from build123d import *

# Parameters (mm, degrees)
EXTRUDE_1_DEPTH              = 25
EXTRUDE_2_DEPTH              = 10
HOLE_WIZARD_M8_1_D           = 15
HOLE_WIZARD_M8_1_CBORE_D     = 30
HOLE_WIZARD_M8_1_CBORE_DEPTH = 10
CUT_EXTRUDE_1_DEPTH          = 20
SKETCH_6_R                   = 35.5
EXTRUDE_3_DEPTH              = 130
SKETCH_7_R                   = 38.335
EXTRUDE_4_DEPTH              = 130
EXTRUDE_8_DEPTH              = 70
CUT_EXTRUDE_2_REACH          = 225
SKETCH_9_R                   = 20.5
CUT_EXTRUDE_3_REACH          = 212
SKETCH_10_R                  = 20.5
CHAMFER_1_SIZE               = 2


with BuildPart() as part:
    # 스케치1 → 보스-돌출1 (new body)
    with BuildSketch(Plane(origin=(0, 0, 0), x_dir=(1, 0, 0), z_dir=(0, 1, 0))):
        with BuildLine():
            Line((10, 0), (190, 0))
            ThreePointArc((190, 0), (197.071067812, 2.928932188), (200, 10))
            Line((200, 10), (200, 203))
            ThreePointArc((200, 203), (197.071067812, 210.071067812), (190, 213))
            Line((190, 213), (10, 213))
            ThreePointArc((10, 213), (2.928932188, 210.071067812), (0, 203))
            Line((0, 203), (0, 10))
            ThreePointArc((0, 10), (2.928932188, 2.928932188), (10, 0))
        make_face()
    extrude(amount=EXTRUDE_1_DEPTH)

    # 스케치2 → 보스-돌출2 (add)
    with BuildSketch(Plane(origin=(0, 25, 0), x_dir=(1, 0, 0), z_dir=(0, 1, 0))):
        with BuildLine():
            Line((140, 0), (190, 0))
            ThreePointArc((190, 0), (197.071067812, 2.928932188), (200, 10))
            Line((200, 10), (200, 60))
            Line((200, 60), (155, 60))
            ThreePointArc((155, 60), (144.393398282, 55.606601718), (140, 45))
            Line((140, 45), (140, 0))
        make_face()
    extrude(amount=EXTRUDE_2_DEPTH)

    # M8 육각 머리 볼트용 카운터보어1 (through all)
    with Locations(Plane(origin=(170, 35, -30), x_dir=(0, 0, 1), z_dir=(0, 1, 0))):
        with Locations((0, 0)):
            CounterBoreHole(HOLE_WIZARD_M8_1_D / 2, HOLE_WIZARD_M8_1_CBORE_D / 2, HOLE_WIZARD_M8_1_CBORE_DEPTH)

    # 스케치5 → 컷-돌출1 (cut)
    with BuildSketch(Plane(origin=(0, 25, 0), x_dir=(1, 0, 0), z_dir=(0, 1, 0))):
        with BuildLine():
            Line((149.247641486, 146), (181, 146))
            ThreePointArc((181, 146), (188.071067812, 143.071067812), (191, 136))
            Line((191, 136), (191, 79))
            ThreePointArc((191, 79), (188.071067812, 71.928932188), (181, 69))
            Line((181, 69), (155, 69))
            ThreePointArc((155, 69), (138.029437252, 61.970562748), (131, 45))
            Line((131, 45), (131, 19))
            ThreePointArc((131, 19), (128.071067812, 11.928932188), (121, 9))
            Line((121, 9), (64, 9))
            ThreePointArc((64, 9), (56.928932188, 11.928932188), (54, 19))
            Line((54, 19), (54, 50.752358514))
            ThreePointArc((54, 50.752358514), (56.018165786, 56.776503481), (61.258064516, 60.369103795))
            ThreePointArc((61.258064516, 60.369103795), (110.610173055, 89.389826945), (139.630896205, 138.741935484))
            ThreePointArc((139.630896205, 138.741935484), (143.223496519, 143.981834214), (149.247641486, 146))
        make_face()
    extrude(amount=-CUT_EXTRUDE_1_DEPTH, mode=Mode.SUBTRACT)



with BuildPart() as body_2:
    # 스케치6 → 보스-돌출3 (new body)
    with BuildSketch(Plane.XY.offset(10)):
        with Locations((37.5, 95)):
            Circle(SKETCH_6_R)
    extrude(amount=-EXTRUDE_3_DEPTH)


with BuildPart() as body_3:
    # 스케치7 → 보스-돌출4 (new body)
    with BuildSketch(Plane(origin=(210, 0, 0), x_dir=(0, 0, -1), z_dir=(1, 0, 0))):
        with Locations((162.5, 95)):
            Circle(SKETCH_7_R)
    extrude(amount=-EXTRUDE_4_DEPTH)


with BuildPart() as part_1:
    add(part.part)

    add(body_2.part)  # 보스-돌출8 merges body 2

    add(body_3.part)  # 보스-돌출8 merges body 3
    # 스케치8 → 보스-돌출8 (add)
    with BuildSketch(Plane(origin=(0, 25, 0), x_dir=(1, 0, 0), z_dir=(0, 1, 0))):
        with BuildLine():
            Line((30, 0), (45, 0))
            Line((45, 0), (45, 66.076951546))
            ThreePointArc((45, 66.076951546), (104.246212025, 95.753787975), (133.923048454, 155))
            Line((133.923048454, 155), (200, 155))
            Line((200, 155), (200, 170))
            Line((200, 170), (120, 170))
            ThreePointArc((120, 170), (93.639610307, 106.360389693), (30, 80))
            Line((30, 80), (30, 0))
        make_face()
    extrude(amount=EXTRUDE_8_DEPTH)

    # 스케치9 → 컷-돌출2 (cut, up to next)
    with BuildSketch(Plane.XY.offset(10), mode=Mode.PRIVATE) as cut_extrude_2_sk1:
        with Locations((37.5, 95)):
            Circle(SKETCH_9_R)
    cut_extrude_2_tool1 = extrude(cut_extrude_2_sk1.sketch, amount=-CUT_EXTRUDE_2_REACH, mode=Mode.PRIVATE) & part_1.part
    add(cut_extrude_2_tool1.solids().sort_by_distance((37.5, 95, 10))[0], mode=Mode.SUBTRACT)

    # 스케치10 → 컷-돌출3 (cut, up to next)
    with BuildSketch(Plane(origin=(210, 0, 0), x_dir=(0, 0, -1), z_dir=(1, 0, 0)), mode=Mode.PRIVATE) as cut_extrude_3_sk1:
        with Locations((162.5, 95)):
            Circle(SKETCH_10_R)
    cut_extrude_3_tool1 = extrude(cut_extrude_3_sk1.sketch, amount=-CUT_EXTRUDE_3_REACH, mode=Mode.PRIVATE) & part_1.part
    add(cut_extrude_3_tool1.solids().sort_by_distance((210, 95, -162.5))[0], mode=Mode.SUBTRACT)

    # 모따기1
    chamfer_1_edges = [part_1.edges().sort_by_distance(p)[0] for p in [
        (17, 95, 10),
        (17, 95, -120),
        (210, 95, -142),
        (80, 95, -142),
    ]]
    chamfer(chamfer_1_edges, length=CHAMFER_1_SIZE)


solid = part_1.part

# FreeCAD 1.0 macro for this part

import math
import FreeCAD as App
import Part
import Sketcher


def edges_at(feature, points):
    """Names of the edges that pass closest to the given points."""
    edges = feature.Shape.Edges
    near = lambda p: min(range(len(edges)), key=lambda i: edges[i].distToShape(Part.Vertex(*p))[0])
    return sorted({f"Edge{near(p) + 1}" for p in points})

doc = App.newDocument("Part")
body = doc.addObject("PartDesign::Body", "Body")

# Sketch on XZ plane
sketch1 = doc.addObject("Sketcher::SketchObject", "Sketch")
body.addObject(sketch1)
sketch1.AttachmentSupport = (doc.XZ_Plane, [""])
sketch1.MapMode = "FlatFace"
sketch1.addGeometry([
    Part.LineSegment(App.Vector(10, 0, 0), App.Vector(190, 0, 0)),  # 0
    Part.ArcOfCircle(Part.Circle(App.Vector(190, -10, 0), App.Vector(0, 0, 1), 10), math.radians(0), math.radians(90)),  # 1
    Part.LineSegment(App.Vector(200, -10, 0), App.Vector(200, -203, 0)),  # 2
    Part.ArcOfCircle(Part.Circle(App.Vector(190, -203, 0), App.Vector(0, 0, 1), 10), math.radians(-90), math.radians(0)),  # 3
    Part.LineSegment(App.Vector(190, -213, 0), App.Vector(10, -213, 0)),  # 4
    Part.ArcOfCircle(Part.Circle(App.Vector(10, -203, 0), App.Vector(0, 0, 1), 10), math.radians(180), math.radians(270)),  # 5
    Part.LineSegment(App.Vector(0, -203, 0), App.Vector(0, -10, 0)),  # 6
    Part.ArcOfCircle(Part.Circle(App.Vector(10, -10, 0), App.Vector(0, 0, 1), 10), math.radians(90), math.radians(180)),  # 7
], False)
sketch1.addConstraint([
    Sketcher.Constraint("Tangent", 0, 2, 1, 2),
    Sketcher.Constraint("Tangent", 1, 1, 2, 1),
    Sketcher.Constraint("Tangent", 2, 2, 3, 2),
    Sketcher.Constraint("Tangent", 3, 1, 4, 1),
    Sketcher.Constraint("Tangent", 4, 2, 5, 2),
    Sketcher.Constraint("Tangent", 5, 1, 6, 1),
    Sketcher.Constraint("Tangent", 6, 2, 7, 2),
    Sketcher.Constraint("Tangent", 7, 1, 0, 1),
    Sketcher.Constraint("Horizontal", 0),
    Sketcher.Constraint("Vertical", 2),
    Sketcher.Constraint("Horizontal", 4),
    Sketcher.Constraint("Vertical", 6),
    Sketcher.Constraint("Equal", 1, 3),
    Sketcher.Constraint("Equal", 3, 5),
    Sketcher.Constraint("Equal", 5, 7),
    Sketcher.Constraint("PointOnObject", 0, 2, -1),
    Sketcher.Constraint("PointOnObject", 5, 1, -2),
    Sketcher.Constraint("Radius", 1, 10.0),
    Sketcher.Constraint("DistanceX", 0, 1, 0, 2, 180.0),
    Sketcher.Constraint("DistanceY", 2, 2, 2, 1, 193.0),
])
pad1 = doc.addObject("PartDesign::Pad", "Pad")
body.addObject(pad1)
pad1.Profile = sketch1
pad1.Length = 25
pad1.Reversed = True

# Sketch on XZ plane
sketch2 = doc.addObject("Sketcher::SketchObject", "Sketch001")
body.addObject(sketch2)
sketch2.AttachmentSupport = (doc.XZ_Plane, [""])
sketch2.MapMode = "FlatFace"
sketch2.AttachmentOffset = App.Placement(App.Vector(0, 0, -25), App.Rotation())
sketch2.addGeometry([
    Part.LineSegment(App.Vector(140, 0, 0), App.Vector(190, 0, 0)),  # 0
    Part.ArcOfCircle(Part.Circle(App.Vector(190, -10, 0), App.Vector(0, 0, 1), 10), math.radians(0), math.radians(90)),  # 1
    Part.LineSegment(App.Vector(200, -10, 0), App.Vector(200, -60, 0)),  # 2
    Part.LineSegment(App.Vector(200, -60, 0), App.Vector(155, -60, 0)),  # 3
    Part.ArcOfCircle(Part.Circle(App.Vector(155, -45, 0), App.Vector(0, 0, 1), 15), math.radians(180), math.radians(270)),  # 4
    Part.LineSegment(App.Vector(140, -45, 0), App.Vector(140, 0, 0)),  # 5
], False)
sketch2.addConstraint([
    Sketcher.Constraint("Tangent", 0, 2, 1, 2),
    Sketcher.Constraint("Tangent", 1, 1, 2, 1),
    Sketcher.Constraint("Coincident", 2, 2, 3, 1),
    Sketcher.Constraint("Tangent", 3, 2, 4, 2),
    Sketcher.Constraint("Tangent", 4, 1, 5, 1),
    Sketcher.Constraint("Coincident", 5, 2, 0, 1),
    Sketcher.Constraint("Horizontal", 0),
    Sketcher.Constraint("Vertical", 2),
    Sketcher.Constraint("Horizontal", 3),
    Sketcher.Constraint("Vertical", 5),
    Sketcher.Constraint("PointOnObject", 0, 2, -1),
    Sketcher.Constraint("Equal", 0, 2),
    Sketcher.Constraint("Radius", 1, 10.0),
    Sketcher.Constraint("Radius", 4, 15.0),
    Sketcher.Constraint("DistanceX", 0, 1, 0, 2, 50.0),
    Sketcher.Constraint("DistanceX", -1, 1, 1, 3, 190.0),
])
pad2 = doc.addObject("PartDesign::Pad", "Pad001")
body.addObject(pad2)
pad2.Profile = sketch2
pad2.Length = 10
pad2.Reversed = True

# Sketch on XZ plane
sketch3 = doc.addObject("Sketcher::SketchObject", "Sketch002")
body.addObject(sketch3)
sketch3.AttachmentSupport = (doc.XZ_Plane, [""])
sketch3.MapMode = "FlatFace"
sketch3.AttachmentOffset = App.Placement(App.Vector(0, 0, -35), App.Rotation())
sketch3.addGeometry(Part.Circle(App.Vector(170, -30, 0), App.Vector(0, 0, 1), 7.5), False)
sketch3.addConstraint([
    Sketcher.Constraint("Diameter", 0, 15.0),
    Sketcher.Constraint("DistanceX", -1, 1, 0, 3, 170.0),
    Sketcher.Constraint("DistanceY", 0, 3, -1, 1, 30.0),
])
doc.recompute()
hole = doc.addObject("PartDesign::Hole", "Hole")
body.addObject(hole)
hole.Profile = sketch3
hole.ThreadType = "None"
hole.Diameter = 15
hole.DepthType = "ThroughAll"
hole.HoleCutType = "Counterbore"
hole.HoleCutDiameter = 30
hole.HoleCutDepth = 10
hole.Reversed = True

# Sketch on XZ plane
sketch4 = doc.addObject("Sketcher::SketchObject", "Sketch003")
body.addObject(sketch4)
sketch4.AttachmentSupport = (doc.XZ_Plane, [""])
sketch4.MapMode = "FlatFace"
sketch4.AttachmentOffset = App.Placement(App.Vector(0, 0, -25), App.Rotation())
sketch4.addGeometry([
    Part.LineSegment(App.Vector(181, -146, 0), App.Vector(149.247641, -146, 0)),  # 0
    Part.ArcOfCircle(Part.Circle(App.Vector(149.247641, -136, 0), App.Vector(0, 0, 1), 10), math.radians(-164.086039), math.radians(-90)),  # 1
    Part.ArcOfCircle(Part.Circle(App.Vector(30, -170, 0), App.Vector(0, 0, 1), 114), math.radians(15.913961), math.radians(74.086039)),  # 2
    Part.ArcOfCircle(Part.Circle(App.Vector(64, -50.752359, 0), App.Vector(0, 0, 1), 10), math.radians(180), math.radians(254.086039)),  # 3
    Part.LineSegment(App.Vector(54, -50.752359, 0), App.Vector(54, -19, 0)),  # 4
    Part.ArcOfCircle(Part.Circle(App.Vector(64, -19, 0), App.Vector(0, 0, 1), 10), math.radians(90), math.radians(180)),  # 5
    Part.LineSegment(App.Vector(64, -9, 0), App.Vector(121, -9, 0)),  # 6
    Part.ArcOfCircle(Part.Circle(App.Vector(121, -19, 0), App.Vector(0, 0, 1), 10), math.radians(0), math.radians(90)),  # 7
    Part.LineSegment(App.Vector(131, -19, 0), App.Vector(131, -45, 0)),  # 8
    Part.ArcOfCircle(Part.Circle(App.Vector(155, -45, 0), App.Vector(0, 0, 1), 24), math.radians(-180), math.radians(-90)),  # 9
    Part.LineSegment(App.Vector(155, -69, 0), App.Vector(181, -69, 0)),  # 10
    Part.ArcOfCircle(Part.Circle(App.Vector(181, -79, 0), App.Vector(0, 0, 1), 10), math.radians(0), math.radians(90)),  # 11
    Part.LineSegment(App.Vector(191, -79, 0), App.Vector(191, -136, 0)),  # 12
    Part.ArcOfCircle(Part.Circle(App.Vector(181, -136, 0), App.Vector(0, 0, 1), 10), math.radians(-90), math.radians(0)),  # 13
], False)
sketch4.addConstraint([
    Sketcher.Constraint("Tangent", 0, 2, 1, 2),
    Sketcher.Constraint("Tangent", 1, 1, 2, 1),
    Sketcher.Constraint("Tangent", 2, 2, 3, 2),
    Sketcher.Constraint("Tangent", 3, 1, 4, 1),
    Sketcher.Constraint("Tangent", 4, 2, 5, 2),
    Sketcher.Constraint("Tangent", 5, 1, 6, 1),
    Sketcher.Constraint("Tangent", 6, 2, 7, 2),
    Sketcher.Constraint("Tangent", 7, 1, 8, 1),
    Sketcher.Constraint("Tangent", 8, 2, 9, 1),
    Sketcher.Constraint("Tangent", 9, 2, 10, 1),
    Sketcher.Constraint("Tangent", 10, 2, 11, 2),
    Sketcher.Constraint("Tangent", 11, 1, 12, 1),
    Sketcher.Constraint("Tangent", 12, 2, 13, 2),
    Sketcher.Constraint("Tangent", 13, 1, 0, 1),
    Sketcher.Constraint("Horizontal", 0),
    Sketcher.Constraint("Vertical", 4),
    Sketcher.Constraint("Horizontal", 6),
    Sketcher.Constraint("Vertical", 8),
    Sketcher.Constraint("Horizontal", 10),
    Sketcher.Constraint("Vertical", 12),
    Sketcher.Constraint("Equal", 1, 3),
    Sketcher.Constraint("Equal", 3, 5),
    Sketcher.Constraint("Equal", 5, 7),
    Sketcher.Constraint("Equal", 7, 11),
    Sketcher.Constraint("Equal", 11, 13),
    Sketcher.Constraint("Equal", 0, 4),
    Sketcher.Constraint("Equal", 10, 8),
    Sketcher.Constraint("Equal", 6, 12),
    Sketcher.Constraint("Radius", 1, 10.0),
    Sketcher.Constraint("Radius", 2, 114.0),
    Sketcher.Constraint("Radius", 9, 24.0),
    Sketcher.Constraint("DistanceX", 6, 1, 6, 2, 57.0),
    Sketcher.Constraint("DistanceX", 10, 1, 10, 2, 26.0),
    Sketcher.Constraint("DistanceY", 1, 3, -1, 1, 136.0),
    Sketcher.Constraint("DistanceX", -1, 1, 2, 3, 30.0),
    Sketcher.Constraint("DistanceY", 2, 3, -1, 1, 170.0),
])
pocket1 = doc.addObject("PartDesign::Pocket", "Pocket")
body.addObject(pocket1)
pocket1.Profile = sketch4
pocket1.Length = 20
pocket1.Reversed = True
body2 = doc.addObject("PartDesign::Body", "Body001")

# Sketch on XY plane
sketch5 = doc.addObject("Sketcher::SketchObject", "Sketch004")
body2.addObject(sketch5)
sketch5.AttachmentSupport = (doc.getObject("XY_Plane001"), [""])
sketch5.MapMode = "FlatFace"
sketch5.AttachmentOffset = App.Placement(App.Vector(0, 0, 10), App.Rotation())
sketch5.addGeometry(Part.Circle(App.Vector(37.5, 95, 0), App.Vector(0, 0, 1), 35.5), False)
sketch5.addConstraint([
    Sketcher.Constraint("Diameter", 0, 71.0),
    Sketcher.Constraint("DistanceY", -1, 1, 0, 3, 95.0),
    Sketcher.Constraint("DistanceX", -1, 1, 0, 3, 37.5),
])
pad3 = doc.addObject("PartDesign::Pad", "Pad002")
body2.addObject(pad3)
pad3.Profile = sketch5
pad3.Length = 130
pad3.Reversed = True
body3 = doc.addObject("PartDesign::Body", "Body002")

# Sketch on YZ plane
sketch6 = doc.addObject("Sketcher::SketchObject", "Sketch005")
body3.addObject(sketch6)
sketch6.AttachmentSupport = (doc.getObject("YZ_Plane002"), [""])
sketch6.MapMode = "FlatFace"
sketch6.AttachmentOffset = App.Placement(App.Vector(0, 0, 210), App.Rotation())
sketch6.addGeometry(Part.Circle(App.Vector(95, -162.5, 0), App.Vector(0, 0, 1), 38.335), False)
sketch6.addConstraint([
    Sketcher.Constraint("Diameter", 0, 76.67),
    Sketcher.Constraint("DistanceX", -1, 1, 0, 3, 95.0),
    Sketcher.Constraint("DistanceY", 0, 3, -1, 1, 162.5),
])
pad4 = doc.addObject("PartDesign::Pad", "Pad003")
body3.addObject(pad4)
pad4.Profile = sketch6
pad4.Length = 130
pad4.Reversed = True
body.AllowCompound = True
doc.recompute()

boolean = doc.addObject("PartDesign::Boolean", "Boolean")
body.addObject(boolean)
boolean.Type = "Fuse"
boolean.addObjects([body2])
doc.recompute()

boolean2 = doc.addObject("PartDesign::Boolean", "Boolean001")
body.addObject(boolean2)
boolean2.Type = "Fuse"
boolean2.addObjects([body3])

# Sketch on XZ plane
sketch7 = doc.addObject("Sketcher::SketchObject", "Sketch006")
body.addObject(sketch7)
sketch7.AttachmentSupport = (doc.XZ_Plane, [""])
sketch7.MapMode = "FlatFace"
sketch7.AttachmentOffset = App.Placement(App.Vector(0, 0, -25), App.Rotation())
sketch7.addGeometry([
    Part.LineSegment(App.Vector(30, 0, 0), App.Vector(45, 0, 0)),  # 0
    Part.LineSegment(App.Vector(45, 0, 0), App.Vector(45, -66.076952, 0)),  # 1
    Part.ArcOfCircle(Part.Circle(App.Vector(30, -170, 0), App.Vector(0, 0, 1), 105), math.radians(8.213211), math.radians(81.786789)),  # 2
    Part.LineSegment(App.Vector(133.923048, -155, 0), App.Vector(200, -155, 0)),  # 3
    Part.LineSegment(App.Vector(200, -155, 0), App.Vector(200, -170, 0)),  # 4
    Part.LineSegment(App.Vector(200, -170, 0), App.Vector(120, -170, 0)),  # 5
    Part.ArcOfCircle(Part.Circle(App.Vector(30, -170, 0), App.Vector(0, 0, 1), 90), math.radians(0), math.radians(90)),  # 6
    Part.LineSegment(App.Vector(30, -80, 0), App.Vector(30, 0, 0)),  # 7
], False)
sketch7.addConstraint([
    Sketcher.Constraint("Coincident", 0, 2, 1, 1),
    Sketcher.Constraint("Coincident", 1, 2, 2, 2),
    Sketcher.Constraint("Coincident", 2, 1, 3, 1),
    Sketcher.Constraint("Coincident", 3, 2, 4, 1),
    Sketcher.Constraint("Coincident", 4, 2, 5, 1),
    Sketcher.Constraint("Coincident", 5, 2, 6, 1),
    Sketcher.Constraint("Coincident", 6, 2, 7, 1),
    Sketcher.Constraint("Coincident", 7, 2, 0, 1),
    Sketcher.Constraint("Horizontal", 0),
    Sketcher.Constraint("Vertical", 1),
    Sketcher.Constraint("Horizontal", 3),
    Sketcher.Constraint("Vertical", 4),
    Sketcher.Constraint("Horizontal", 5),
    Sketcher.Constraint("Vertical", 7),
    Sketcher.Constraint("Coincident", 6, 3, 2, 3),
    Sketcher.Constraint("PointOnObject", 0, 2, -1),
    Sketcher.Constraint("Horizontal", 6, 3, 4, 2),
    Sketcher.Constraint("Vertical", 2, 3, 6, 2),
    Sketcher.Constraint("Equal", 3, 1),
    Sketcher.Constraint("Equal", 0, 4),
    Sketcher.Constraint("Radius", 2, 105.0),
    Sketcher.Constraint("Radius", 6, 90.0),
    Sketcher.Constraint("DistanceX", 0, 1, 0, 2, 15.0),
    Sketcher.Constraint("DistanceX", 5, 2, 5, 1, 80.0),
    Sketcher.Constraint("DistanceX", -1, 1, 2, 3, 30.0),
])
pad5 = doc.addObject("PartDesign::Pad", "Pad004")
body.addObject(pad5)
pad5.Profile = sketch7
pad5.Length = 70
pad5.Reversed = True

# Sketch on XY plane
sketch8 = doc.addObject("Sketcher::SketchObject", "Sketch007")
body.addObject(sketch8)
sketch8.AttachmentSupport = (doc.XY_Plane, [""])
sketch8.MapMode = "FlatFace"
sketch8.AttachmentOffset = App.Placement(App.Vector(0, 0, 10), App.Rotation())
sketch8.addGeometry(Part.Circle(App.Vector(37.5, 95, 0), App.Vector(0, 0, 1), 20.5), False)
sketch8.addConstraint([
    Sketcher.Constraint("Diameter", 0, 41.0),
    Sketcher.Constraint("DistanceY", -1, 1, 0, 3, 95.0),
    Sketcher.Constraint("DistanceX", -1, 1, 0, 3, 37.5),
])
pocket2 = doc.addObject("PartDesign::Pocket", "Pocket001")
body.addObject(pocket2)
pocket2.Profile = sketch8
pocket2.Type = "UpToFirst"

# Sketch on YZ plane
sketch9 = doc.addObject("Sketcher::SketchObject", "Sketch008")
body.addObject(sketch9)
sketch9.AttachmentSupport = (doc.YZ_Plane, [""])
sketch9.MapMode = "FlatFace"
sketch9.AttachmentOffset = App.Placement(App.Vector(0, 0, 210), App.Rotation())
sketch9.addGeometry(Part.Circle(App.Vector(95, -162.5, 0), App.Vector(0, 0, 1), 20.5), False)
sketch9.addConstraint([
    Sketcher.Constraint("Diameter", 0, 41.0),
    Sketcher.Constraint("DistanceX", -1, 1, 0, 3, 95.0),
    Sketcher.Constraint("DistanceY", 0, 3, -1, 1, 162.5),
])
pocket3 = doc.addObject("PartDesign::Pocket", "Pocket002")
body.addObject(pocket3)
pocket3.Profile = sketch9
pocket3.Type = "UpToFirst"
doc.recompute()

chamfer = doc.addObject("PartDesign::Chamfer", "Chamfer")
body.addObject(chamfer)
chamfer.Base = (pocket3, edges_at(pocket3, [
    (17, 95, 10),
    (17, 95, -120),
    (210, 95, -142),
    (80, 95, -142),
]))
chamfer.Size = 2

doc.recompute()
